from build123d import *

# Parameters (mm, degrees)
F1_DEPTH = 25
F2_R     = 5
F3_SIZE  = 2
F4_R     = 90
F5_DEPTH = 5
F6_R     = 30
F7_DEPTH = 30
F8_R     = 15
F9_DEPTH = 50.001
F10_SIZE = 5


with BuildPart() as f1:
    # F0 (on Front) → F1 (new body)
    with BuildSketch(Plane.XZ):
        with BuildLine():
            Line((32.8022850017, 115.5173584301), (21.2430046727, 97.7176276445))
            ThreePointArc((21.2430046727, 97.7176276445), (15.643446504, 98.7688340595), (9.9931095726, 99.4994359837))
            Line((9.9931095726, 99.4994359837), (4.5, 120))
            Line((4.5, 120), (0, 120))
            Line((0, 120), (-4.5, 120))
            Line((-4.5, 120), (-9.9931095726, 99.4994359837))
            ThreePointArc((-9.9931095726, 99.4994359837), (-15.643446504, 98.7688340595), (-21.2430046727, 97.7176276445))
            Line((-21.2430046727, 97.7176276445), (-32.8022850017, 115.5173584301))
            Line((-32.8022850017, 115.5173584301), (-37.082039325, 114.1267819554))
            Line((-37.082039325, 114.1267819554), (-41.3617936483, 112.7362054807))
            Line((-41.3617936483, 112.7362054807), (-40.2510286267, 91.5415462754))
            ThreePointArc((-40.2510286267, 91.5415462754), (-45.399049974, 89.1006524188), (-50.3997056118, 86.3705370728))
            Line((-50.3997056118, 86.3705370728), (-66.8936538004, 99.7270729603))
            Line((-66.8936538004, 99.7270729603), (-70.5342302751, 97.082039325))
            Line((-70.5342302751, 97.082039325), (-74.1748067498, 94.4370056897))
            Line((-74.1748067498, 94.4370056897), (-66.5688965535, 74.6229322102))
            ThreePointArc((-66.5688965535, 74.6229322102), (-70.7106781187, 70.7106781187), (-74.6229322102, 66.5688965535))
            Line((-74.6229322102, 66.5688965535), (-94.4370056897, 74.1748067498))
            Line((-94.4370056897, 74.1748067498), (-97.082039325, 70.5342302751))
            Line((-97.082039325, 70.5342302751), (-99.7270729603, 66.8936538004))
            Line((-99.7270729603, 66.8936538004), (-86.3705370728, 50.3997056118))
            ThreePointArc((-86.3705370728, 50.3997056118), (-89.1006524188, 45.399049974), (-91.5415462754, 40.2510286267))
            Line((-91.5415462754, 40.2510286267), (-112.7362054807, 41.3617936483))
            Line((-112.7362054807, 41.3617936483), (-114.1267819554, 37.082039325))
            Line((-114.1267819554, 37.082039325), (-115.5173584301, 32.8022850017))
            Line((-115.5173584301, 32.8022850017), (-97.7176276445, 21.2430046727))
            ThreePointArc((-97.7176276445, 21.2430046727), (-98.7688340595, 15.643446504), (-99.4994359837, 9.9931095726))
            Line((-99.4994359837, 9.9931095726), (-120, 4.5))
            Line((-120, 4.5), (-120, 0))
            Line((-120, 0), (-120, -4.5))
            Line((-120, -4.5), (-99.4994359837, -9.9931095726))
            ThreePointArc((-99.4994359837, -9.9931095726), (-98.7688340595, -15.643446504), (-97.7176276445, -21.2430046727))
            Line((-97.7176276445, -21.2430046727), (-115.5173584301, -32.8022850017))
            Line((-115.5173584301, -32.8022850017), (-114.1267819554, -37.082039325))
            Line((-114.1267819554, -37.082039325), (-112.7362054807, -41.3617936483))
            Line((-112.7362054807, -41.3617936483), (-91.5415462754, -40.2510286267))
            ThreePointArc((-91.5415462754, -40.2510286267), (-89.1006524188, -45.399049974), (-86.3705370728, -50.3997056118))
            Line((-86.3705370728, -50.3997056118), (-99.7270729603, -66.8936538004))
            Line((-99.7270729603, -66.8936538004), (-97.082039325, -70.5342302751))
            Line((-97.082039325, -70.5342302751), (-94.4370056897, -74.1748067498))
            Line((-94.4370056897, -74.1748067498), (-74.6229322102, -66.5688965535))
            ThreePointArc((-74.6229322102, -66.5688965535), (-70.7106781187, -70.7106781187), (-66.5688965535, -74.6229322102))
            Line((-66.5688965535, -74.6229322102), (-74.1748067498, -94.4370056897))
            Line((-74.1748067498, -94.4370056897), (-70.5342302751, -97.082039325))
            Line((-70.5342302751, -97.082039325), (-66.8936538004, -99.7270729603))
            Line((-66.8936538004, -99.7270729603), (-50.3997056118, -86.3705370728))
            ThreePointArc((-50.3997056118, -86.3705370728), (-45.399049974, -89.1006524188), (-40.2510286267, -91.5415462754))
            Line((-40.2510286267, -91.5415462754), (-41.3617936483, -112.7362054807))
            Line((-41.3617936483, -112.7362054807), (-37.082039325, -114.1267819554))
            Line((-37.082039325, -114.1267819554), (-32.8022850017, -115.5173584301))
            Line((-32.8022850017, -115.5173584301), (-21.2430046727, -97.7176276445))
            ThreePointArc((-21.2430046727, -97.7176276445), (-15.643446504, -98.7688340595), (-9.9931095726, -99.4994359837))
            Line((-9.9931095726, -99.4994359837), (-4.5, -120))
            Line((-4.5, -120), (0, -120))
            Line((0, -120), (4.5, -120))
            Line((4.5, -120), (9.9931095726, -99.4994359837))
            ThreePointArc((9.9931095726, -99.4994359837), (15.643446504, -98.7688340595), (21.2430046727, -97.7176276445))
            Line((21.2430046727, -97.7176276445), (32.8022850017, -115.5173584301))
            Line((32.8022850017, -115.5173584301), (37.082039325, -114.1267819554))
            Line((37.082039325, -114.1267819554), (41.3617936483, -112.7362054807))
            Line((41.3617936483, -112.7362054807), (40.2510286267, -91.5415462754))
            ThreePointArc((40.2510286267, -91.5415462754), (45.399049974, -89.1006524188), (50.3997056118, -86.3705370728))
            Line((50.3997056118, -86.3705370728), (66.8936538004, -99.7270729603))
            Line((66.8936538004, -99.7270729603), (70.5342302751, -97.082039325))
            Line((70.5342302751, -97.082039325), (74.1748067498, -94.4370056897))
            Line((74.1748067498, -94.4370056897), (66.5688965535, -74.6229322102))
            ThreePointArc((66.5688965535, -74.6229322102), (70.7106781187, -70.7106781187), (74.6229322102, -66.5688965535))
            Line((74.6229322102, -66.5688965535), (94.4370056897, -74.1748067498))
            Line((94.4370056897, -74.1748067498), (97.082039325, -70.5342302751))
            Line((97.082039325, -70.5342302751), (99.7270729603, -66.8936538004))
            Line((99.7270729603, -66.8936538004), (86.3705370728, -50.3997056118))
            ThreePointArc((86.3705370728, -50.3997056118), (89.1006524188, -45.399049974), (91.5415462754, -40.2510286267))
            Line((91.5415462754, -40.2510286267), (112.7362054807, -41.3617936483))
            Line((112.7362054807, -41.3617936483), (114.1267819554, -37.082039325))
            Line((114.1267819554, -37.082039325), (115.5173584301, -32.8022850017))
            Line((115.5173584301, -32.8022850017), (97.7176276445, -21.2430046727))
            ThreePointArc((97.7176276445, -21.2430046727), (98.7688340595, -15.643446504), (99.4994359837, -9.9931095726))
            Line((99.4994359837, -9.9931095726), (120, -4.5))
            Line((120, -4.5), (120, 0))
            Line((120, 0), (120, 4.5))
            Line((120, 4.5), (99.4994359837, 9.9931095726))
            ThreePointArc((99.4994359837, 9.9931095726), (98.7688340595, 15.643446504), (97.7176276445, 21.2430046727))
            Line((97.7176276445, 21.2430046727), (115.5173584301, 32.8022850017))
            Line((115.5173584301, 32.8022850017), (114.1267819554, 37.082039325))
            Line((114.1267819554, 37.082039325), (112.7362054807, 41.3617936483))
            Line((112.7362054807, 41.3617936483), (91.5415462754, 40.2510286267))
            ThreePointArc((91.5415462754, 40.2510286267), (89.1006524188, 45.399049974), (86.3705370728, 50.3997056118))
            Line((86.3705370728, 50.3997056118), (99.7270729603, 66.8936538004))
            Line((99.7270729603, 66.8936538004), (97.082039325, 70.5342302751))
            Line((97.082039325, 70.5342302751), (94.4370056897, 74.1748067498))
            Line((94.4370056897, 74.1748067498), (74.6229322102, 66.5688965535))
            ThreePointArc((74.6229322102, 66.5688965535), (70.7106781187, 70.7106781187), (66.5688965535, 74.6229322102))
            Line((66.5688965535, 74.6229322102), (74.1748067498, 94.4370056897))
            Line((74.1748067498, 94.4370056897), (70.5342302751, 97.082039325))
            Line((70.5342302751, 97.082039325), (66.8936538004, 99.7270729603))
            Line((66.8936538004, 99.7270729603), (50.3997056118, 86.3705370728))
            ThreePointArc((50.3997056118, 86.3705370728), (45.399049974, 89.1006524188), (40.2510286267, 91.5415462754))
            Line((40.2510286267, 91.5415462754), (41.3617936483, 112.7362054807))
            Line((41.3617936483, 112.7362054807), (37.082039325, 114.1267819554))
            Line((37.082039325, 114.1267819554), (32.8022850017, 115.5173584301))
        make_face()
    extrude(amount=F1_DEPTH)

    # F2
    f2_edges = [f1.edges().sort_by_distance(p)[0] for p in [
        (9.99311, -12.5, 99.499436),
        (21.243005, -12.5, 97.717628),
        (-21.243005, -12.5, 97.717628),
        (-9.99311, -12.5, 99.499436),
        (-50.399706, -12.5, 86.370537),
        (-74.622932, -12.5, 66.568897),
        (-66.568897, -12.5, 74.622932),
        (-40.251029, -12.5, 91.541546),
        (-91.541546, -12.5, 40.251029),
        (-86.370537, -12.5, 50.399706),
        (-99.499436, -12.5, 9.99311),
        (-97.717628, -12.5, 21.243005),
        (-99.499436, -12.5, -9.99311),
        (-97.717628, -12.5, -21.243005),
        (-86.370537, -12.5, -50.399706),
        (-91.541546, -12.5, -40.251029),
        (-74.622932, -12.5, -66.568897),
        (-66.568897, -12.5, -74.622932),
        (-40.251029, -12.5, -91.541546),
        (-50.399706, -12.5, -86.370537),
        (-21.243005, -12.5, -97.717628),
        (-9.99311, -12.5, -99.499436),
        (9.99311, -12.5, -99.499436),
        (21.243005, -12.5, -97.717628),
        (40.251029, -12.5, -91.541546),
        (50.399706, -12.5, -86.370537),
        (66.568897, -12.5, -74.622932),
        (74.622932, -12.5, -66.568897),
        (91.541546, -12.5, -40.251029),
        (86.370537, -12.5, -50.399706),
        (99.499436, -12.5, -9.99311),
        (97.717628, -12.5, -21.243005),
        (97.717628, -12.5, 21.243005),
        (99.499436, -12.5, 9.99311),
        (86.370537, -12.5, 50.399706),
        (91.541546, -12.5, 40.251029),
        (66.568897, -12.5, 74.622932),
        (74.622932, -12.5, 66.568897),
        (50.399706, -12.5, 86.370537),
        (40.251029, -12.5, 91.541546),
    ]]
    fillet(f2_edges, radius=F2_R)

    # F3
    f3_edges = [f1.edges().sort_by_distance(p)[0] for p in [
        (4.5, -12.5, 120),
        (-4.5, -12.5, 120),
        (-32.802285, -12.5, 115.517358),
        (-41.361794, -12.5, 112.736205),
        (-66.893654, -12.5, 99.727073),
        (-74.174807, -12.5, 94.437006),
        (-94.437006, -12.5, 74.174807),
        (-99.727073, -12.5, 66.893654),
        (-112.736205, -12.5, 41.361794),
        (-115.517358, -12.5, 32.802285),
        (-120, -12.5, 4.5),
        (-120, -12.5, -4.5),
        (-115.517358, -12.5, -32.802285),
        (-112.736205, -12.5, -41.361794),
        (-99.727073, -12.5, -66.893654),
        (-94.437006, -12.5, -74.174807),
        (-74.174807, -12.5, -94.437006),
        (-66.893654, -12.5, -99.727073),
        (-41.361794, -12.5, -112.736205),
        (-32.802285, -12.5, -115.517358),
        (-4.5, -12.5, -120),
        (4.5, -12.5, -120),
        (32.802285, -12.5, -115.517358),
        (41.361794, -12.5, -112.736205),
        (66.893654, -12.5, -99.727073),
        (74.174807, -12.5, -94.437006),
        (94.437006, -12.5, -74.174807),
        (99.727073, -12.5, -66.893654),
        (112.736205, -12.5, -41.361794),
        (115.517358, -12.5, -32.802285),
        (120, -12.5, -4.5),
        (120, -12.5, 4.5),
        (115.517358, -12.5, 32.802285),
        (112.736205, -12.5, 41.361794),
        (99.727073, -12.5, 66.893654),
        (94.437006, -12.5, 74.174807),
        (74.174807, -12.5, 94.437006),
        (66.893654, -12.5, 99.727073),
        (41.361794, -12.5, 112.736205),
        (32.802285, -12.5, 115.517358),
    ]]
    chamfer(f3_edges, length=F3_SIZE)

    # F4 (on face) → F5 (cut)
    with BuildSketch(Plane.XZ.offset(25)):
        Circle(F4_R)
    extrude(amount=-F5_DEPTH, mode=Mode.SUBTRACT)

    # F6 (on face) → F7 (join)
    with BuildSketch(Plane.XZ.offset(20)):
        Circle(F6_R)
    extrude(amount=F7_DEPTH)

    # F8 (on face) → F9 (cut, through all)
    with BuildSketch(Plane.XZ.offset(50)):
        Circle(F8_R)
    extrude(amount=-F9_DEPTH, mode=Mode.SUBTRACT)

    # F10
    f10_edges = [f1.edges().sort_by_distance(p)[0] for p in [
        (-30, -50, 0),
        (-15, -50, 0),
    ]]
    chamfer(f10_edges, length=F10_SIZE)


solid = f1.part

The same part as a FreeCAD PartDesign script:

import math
import FreeCAD as App
import Part
import Sketcher
Q = App.Units.Quantity


def edges_at(feature, points):
    """Names of the edges that pass closest to the given points."""
    edges = feature.Shape.Edges
    near = lambda p: min(range(len(edges)), key=lambda i: edges[i].distToShape(Part.Vertex(*p))[0])
    return sorted({f"Edge{near(p) + 1}" for p in points})

doc = App.newDocument("Part")
body = doc.addObject("PartDesign::Body", "Body")

# Sketch on XZ plane
sketch1 = body.newObject("Sketcher::SketchObject", "Sketch")
sketch1.AttachmentSupport = (doc.getObject("XZ_Plane"), [""])
sketch1.MapMode = "FlatFace"
sketch1.addGeometry(Part.LineSegment(App.Vector(32.802285, 115.517358, 0), App.Vector(21.243005, 97.717628, 0)), False)
sketch1.addGeometry(Part.ArcOfCircle(Part.Circle(App.Vector(0, 0, 0), App.Vector(0, 0, 1), 100), math.radians(77.735203), math.radians(84.264797)), False)
sketch1.addGeometry(Part.LineSegment(App.Vector(9.99311, 99.499436, 0), App.Vector(4.5, 120, 0)), False)
sketch1.addGeometry(Part.LineSegment(App.Vector(4.5, 120, 0), App.Vector(-4.5, 120, 0)), False)
sketch1.addGeometry(Part.LineSegment(App.Vector(-4.5, 120, 0), App.Vector(-9.99311, 99.499436, 0)), False)
sketch1.addGeometry(Part.ArcOfCircle(Part.Circle(App.Vector(0, 0, 0), App.Vector(0, 0, 1), 100), math.radians(95.735203), math.radians(102.264797)), False)
sketch1.addGeometry(Part.LineSegment(App.Vector(-21.243005, 97.717628, 0), App.Vector(-32.802285, 115.517358, 0)), False)
sketch1.addGeometry(Part.LineSegment(App.Vector(-32.802285, 115.517358, 0), App.Vector(-41.361794, 112.736205, 0)), False)
sketch1.addGeometry(Part.LineSegment(App.Vector(-41.361794, 112.736205, 0), App.Vector(-40.251029, 91.541546, 0)), False)
sketch1.addGeometry(Part.ArcOfCircle(Part.Circle(App.Vector(0, 0, 0), App.Vector(0, 0, 1), 100), math.radians(113.735203), math.radians(120.264797)), False)
sketch1.addGeometry(Part.LineSegment(App.Vector(-50.399706, 86.370537, 0), App.Vector(-66.893654, 99.727073, 0)), False)
sketch1.addGeometry(Part.LineSegment(App.Vector(-66.893654, 99.727073, 0), App.Vector(-74.174807, 94.437006, 0)), False)
sketch1.addGeometry(Part.LineSegment(App.Vector(-74.174807, 94.437006, 0), App.Vector(-66.568897, 74.622932, 0)), False)
sketch1.addGeometry(Part.ArcOfCircle(Part.Circle(App.Vector(0, 0, 0), App.Vector(0, 0, 1), 100), math.radians(131.735203), math.radians(138.264797)), False)
sketch1.addGeometry(Part.LineSegment(App.Vector(-74.622932, 66.568897, 0), App.Vector(-94.437006, 74.174807, 0)), False)
sketch1.addGeometry(Part.LineSegment(App.Vector(-94.437006, 74.174807, 0), App.Vector(-99.727073, 66.893654, 0)), False)
sketch1.addGeometry(Part.LineSegment(App.Vector(-99.727073, 66.893654, 0), App.Vector(-86.370537, 50.399706, 0)), False)
sketch1.addGeometry(Part.ArcOfCircle(Part.Circle(App.Vector(0, 0, 0), App.Vector(0, 0, 1), 100), math.radians(149.735203), math.radians(156.264797)), False)
sketch1.addGeometry(Part.LineSegment(App.Vector(-91.541546, 40.251029, 0), App.Vector(-112.736205, 41.361794, 0)), False)
sketch1.addGeometry(Part.LineSegment(App.Vector(-112.736205, 41.361794, 0), App.Vector(-115.517358, 32.802285, 0)), False)
sketch1.addGeometry(Part.LineSegment(App.Vector(-115.517358, 32.802285, 0), App.Vector(-97.717628, 21.243005, 0)), False)
sketch1.addGeometry(Part.ArcOfCircle(Part.Circle(App.Vector(0, 0, 0), App.Vector(0, 0, 1), 100), math.radians(167.735203), math.radians(174.264797)), False)
sketch1.addGeometry(Part.LineSegment(App.Vector(-99.499436, 9.99311, 0), App.Vector(-120, 4.5, 0)), False)
sketch1.addGeometry(Part.LineSegment(App.Vector(-120, 4.5, 0), App.Vector(-120, -4.5, 0)), False)
sketch1.addGeometry(Part.LineSegment(App.Vector(-120, -4.5, 0), App.Vector(-99.499436, -9.99311, 0)), False)
sketch1.addGeometry(Part.ArcOfCircle(Part.Circle(App.Vector(0, 0, 0), App.Vector(0, 0, 1), 100), math.radians(-174.264797), math.radians(-167.735203)), False)
sketch1.addGeometry(Part.LineSegment(App.Vector(-97.717628, -21.243005, 0), App.Vector(-115.517358, -32.802285, 0)), False)
sketch1.addGeometry(Part.LineSegment(App.Vector(-115.517358, -32.802285, 0), App.Vector(-112.736205, -41.361794, 0)), False)
sketch1.addGeometry(Part.LineSegment(App.Vector(-112.736205, -41.361794, 0), App.Vector(-91.541546, -40.251029, 0)), False)
sketch1.addGeometry(Part.ArcOfCircle(Part.Circle(App.Vector(0, 0, 0), App.Vector(0, 0, 1), 100), math.radians(-156.264797), math.radians(-149.735203)), False)
sketch1.addGeometry(Part.LineSegment(App.Vector(-86.370537, -50.399706, 0), App.Vector(-99.727073, -66.893654, 0)), False)
sketch1.addGeometry(Part.LineSegment(App.Vector(-99.727073, -66.893654, 0), App.Vector(-94.437006, -74.174807, 0)), False)
sketch1.addGeometry(Part.LineSegment(App.Vector(-94.437006, -74.174807, 0), App.Vector(-74.622932, -66.568897, 0)), False)
sketch1.addGeometry(Part.ArcOfCircle(Part.Circle(App.Vector(0, 0, 0), App.Vector(0, 0, 1), 100), math.radians(-138.264797), math.radians(-131.735203)), False)
sketch1.addGeometry(Part.LineSegment(App.Vector(-66.568897, -74.622932, 0), App.Vector(-74.174807, -94.437006, 0)), False)
sketch1.addGeometry(Part.LineSegment(App.Vector(-74.174807, -94.437006, 0), App.Vector(-66.893654, -99.727073, 0)), False)
sketch1.addGeometry(Part.LineSegment(App.Vector(-66.893654, -99.727073, 0), App.Vector(-50.399706, -86.370537, 0)), False)
sketch1.addGeometry(Part.ArcOfCircle(Part.Circle(App.Vector(0, 0, 0), App.Vector(0, 0, 1), 100), math.radians(-120.264797), math.radians(-113.735203)), False)
sketch1.addGeometry(Part.LineSegment(App.Vector(-40.251029, -91.541546, 0), App.Vector(-41.361794, -112.736205, 0)), False)
sketch1.addGeometry(Part.LineSegment(App.Vector(-41.361794, -112.736205, 0), App.Vector(-32.802285, -115.517358, 0)), False)
sketch1.addGeometry(Part.LineSegment(App.Vector(-32.802285, -115.517358, 0), App.Vector(-21.243005, -97.717628, 0)), False)
sketch1.addGeometry(Part.ArcOfCircle(Part.Circle(App.Vector(0, 0, 0), App.Vector(0, 0, 1), 100), math.radians(-102.264797), math.radians(-95.735203)), False)
sketch1.addGeometry(Part.LineSegment(App.Vector(-9.99311, -99.499436, 0), App.Vector(-4.5, -120, 0)), False)
sketch1.addGeometry(Part.LineSegment(App.Vector(-4.5, -120, 0), App.Vector(4.5, -120, 0)), False)
sketch1.addGeometry(Part.LineSegment(App.Vector(4.5, -120, 0), App.Vector(9.99311, -99.499436, 0)), False)
sketch1.addGeometry(Part.ArcOfCircle(Part.Circle(App.Vector(0, 0, 0), App.Vector(0, 0, 1), 100), math.radians(-84.264797), math.radians(-77.735203)), False)
sketch1.addGeometry(Part.LineSegment(App.Vector(21.243005, -97.717628, 0), App.Vector(32.802285, -115.517358, 0)), False)
sketch1.addGeometry(Part.LineSegment(App.Vector(32.802285, -115.517358, 0), App.Vector(41.361794, -112.736205, 0)), False)
sketch1.addGeometry(Part.LineSegment(App.Vector(41.361794, -112.736205, 0), App.Vector(40.251029, -91.541546, 0)), False)
sketch1.addGeometry(Part.ArcOfCircle(Part.Circle(App.Vector(0, 0, 0), App.Vector(0, 0, 1), 100), math.radians(-66.264797), math.radians(-59.735203)), False)
sketch1.addGeometry(Part.LineSegment(App.Vector(50.399706, -86.370537, 0), App.Vector(66.893654, -99.727073, 0)), False)
sketch1.addGeometry(Part.LineSegment(App.Vector(66.893654, -99.727073, 0), App.Vector(74.174807, -94.437006, 0)), False)
sketch1.addGeometry(Part.LineSegment(App.Vector(74.174807, -94.437006, 0), App.Vector(66.568897, -74.622932, 0)), False)
sketch1.addGeometry(Part.ArcOfCircle(Part.Circle(App.Vector(0, 0, 0), App.Vector(0, 0, 1), 100), math.radians(-48.264797), math.radians(-41.735203)), False)
sketch1.addGeometry(Part.LineSegment(App.Vector(74.622932, -66.568897, 0), App.Vector(94.437006, -74.174807, 0)), False)
sketch1.addGeometry(Part.LineSegment(App.Vector(94.437006, -74.174807, 0), App.Vector(99.727073, -66.893654, 0)), False)
sketch1.addGeometry(Part.LineSegment(App.Vector(99.727073, -66.893654, 0), App.Vector(86.370537, -50.399706, 0)), False)
sketch1.addGeometry(Part.ArcOfCircle(Part.Circle(App.Vector(0, 0, 0), App.Vector(0, 0, 1), 100), math.radians(-30.264797), math.radians(-23.735203)), False)
sketch1.addGeometry(Part.LineSegment(App.Vector(91.541546, -40.251029, 0), App.Vector(112.736205, -41.361794, 0)), False)
sketch1.addGeometry(Part.LineSegment(App.Vector(112.736205, -41.361794, 0), App.Vector(115.517358, -32.802285, 0)), False)
sketch1.addGeometry(Part.LineSegment(App.Vector(115.517358, -32.802285, 0), App.Vector(97.717628, -21.243005, 0)), False)
sketch1.addGeometry(Part.ArcOfCircle(Part.Circle(App.Vector(0, 0, 0), App.Vector(0, 0, 1), 100), math.radians(-12.264797), math.radians(-5.735203)), False)
sketch1.addGeometry(Part.LineSegment(App.Vector(99.499436, -9.99311, 0), App.Vector(120, -4.5, 0)), False)
sketch1.addGeometry(Part.LineSegment(App.Vector(120, -4.5, 0), App.Vector(120, 4.5, 0)), False)
sketch1.addGeometry(Part.LineSegment(App.Vector(120, 4.5, 0), App.Vector(99.499436, 9.99311, 0)), False)
sketch1.addGeometry(Part.ArcOfCircle(Part.Circle(App.Vector(0, 0, 0), App.Vector(0, 0, 1), 100), math.radians(5.735203), math.radians(12.264797)), False)
sketch1.addGeometry(Part.LineSegment(App.Vector(97.717628, 21.243005, 0), App.Vector(115.517358, 32.802285, 0)), False)
sketch1.addGeometry(Part.LineSegment(App.Vector(115.517358, 32.802285, 0), App.Vector(112.736205, 41.361794, 0)), False)
sketch1.addGeometry(Part.LineSegment(App.Vector(112.736205, 41.361794, 0), App.Vector(91.541546, 40.251029, 0)), False)
sketch1.addGeometry(Part.ArcOfCircle(Part.Circle(App.Vector(0, 0, 0), App.Vector(0, 0, 1), 100), math.radians(23.735203), math.radians(30.264797)), False)
sketch1.addGeometry(Part.LineSegment(App.Vector(86.370537, 50.399706, 0), App.Vector(99.727073, 66.893654, 0)), False)
sketch1.addGeometry(Part.LineSegment(App.Vector(99.727073, 66.893654, 0), App.Vector(94.437006, 74.174807, 0)), False)
sketch1.addGeometry(Part.LineSegment(App.Vector(94.437006, 74.174807, 0), App.Vector(74.622932, 66.568897, 0)), False)
sketch1.addGeometry(Part.ArcOfCircle(Part.Circle(App.Vector(0, 0, 0), App.Vector(0, 0, 1), 100), math.radians(41.735203), math.radians(48.264797)), False)
sketch1.addGeometry(Part.LineSegment(App.Vector(66.568897, 74.622932, 0), App.Vector(74.174807, 94.437006, 0)), False)
sketch1.addGeometry(Part.LineSegment(App.Vector(74.174807, 94.437006, 0), App.Vector(66.893654, 99.727073, 0)), False)
sketch1.addGeometry(Part.LineSegment(App.Vector(66.893654, 99.727073, 0), App.Vector(50.399706, 86.370537, 0)), False)
sketch1.addGeometry(Part.ArcOfCircle(Part.Circle(App.Vector(0, 0, 0), App.Vector(0, 0, 1), 100), math.radians(59.735203), math.radians(66.264797)), False)
sketch1.addGeometry(Part.LineSegment(App.Vector(40.251029, 91.541546, 0), App.Vector(41.361794, 112.736205, 0)), False)
sketch1.addGeometry(Part.LineSegment(App.Vector(41.361794, 112.736205, 0), App.Vector(32.802285, 115.517358, 0)), False)
sketch1.addConstraint(Sketcher.Constraint("Coincident", 0, 2, 1, 1))
sketch1.addConstraint(Sketcher.Constraint("Coincident", 1, 2, 2, 1))
sketch1.addConstraint(Sketcher.Constraint("Coincident", 2, 2, 3, 1))
sketch1.addConstraint(Sketcher.Constraint("Coincident", 3, 2, 4, 1))
sketch1.addConstraint(Sketcher.Constraint("Coincident", 4, 2, 5, 1))
sketch1.addConstraint(Sketcher.Constraint("Coincident", 5, 2, 6, 1))
sketch1.addConstraint(Sketcher.Constraint("Coincident", 6, 2, 7, 1))
sketch1.addConstraint(Sketcher.Constraint("Coincident", 7, 2, 8, 1))
sketch1.addConstraint(Sketcher.Constraint("Coincident", 8, 2, 9, 1))
sketch1.addConstraint(Sketcher.Constraint("Coincident", 9, 2, 10, 1))
sketch1.addConstraint(Sketcher.Constraint("Coincident", 10, 2, 11, 1))
sketch1.addConstraint(Sketcher.Constraint("Coincident", 11, 2, 12, 1))
sketch1.addConstraint(Sketcher.Constraint("Coincident", 12, 2, 13, 1))
sketch1.addConstraint(Sketcher.Constraint("Coincident", 13, 2, 14, 1))
sketch1.addConstraint(Sketcher.Constraint("Coincident", 14, 2, 15, 1))
sketch1.addConstraint(Sketcher.Constraint("Coincident", 15, 2, 16, 1))
sketch1.addConstraint(Sketcher.Constraint("Coincident", 16, 2, 17, 1))
sketch1.addConstraint(Sketcher.Constraint("Coincident", 17, 2, 18, 1))
sketch1.addConstraint(Sketcher.Constraint("Coincident", 18, 2, 19, 1))
sketch1.addConstraint(Sketcher.Constraint("Coincident", 19, 2, 20, 1))
sketch1.addConstraint(Sketcher.Constraint("Coincident", 20, 2, 21, 1))
sketch1.addConstraint(Sketcher.Constraint("Coincident", 21, 2, 22, 1))
sketch1.addConstraint(Sketcher.Constraint("Coincident", 22, 2, 23, 1))
sketch1.addConstraint(Sketcher.Constraint("Coincident", 23, 2, 24, 1))
sketch1.addConstraint(Sketcher.Constraint("Coincident", 24, 2, 25, 1))
sketch1.addConstraint(Sketcher.Constraint("Coincident", 25, 2, 26, 1))
sketch1.addConstraint(Sketcher.Constraint("Coincident", 26, 2, 27, 1))
sketch1.addConstraint(Sketcher.Constraint("Coincident", 27, 2, 28, 1))
sketch1.addConstraint(Sketcher.Constraint("Coincident", 28, 2, 29, 1))
sketch1.addConstraint(Sketcher.Constraint("Coincident", 29, 2, 30, 1))
sketch1.addConstraint(Sketcher.Constraint("Coincident", 30, 2, 31, 1))
sketch1.addConstraint(Sketcher.Constraint("Coincident", 31, 2, 32, 1))
sketch1.addConstraint(Sketcher.Constraint("Coincident", 32, 2, 33, 1))
sketch1.addConstraint(Sketcher.Constraint("Coincident", 33, 2, 34, 1))
sketch1.addConstraint(Sketcher.Constraint("Coincident", 34, 2, 35, 1))
sketch1.addConstraint(Sketcher.Constraint("Coincident", 35, 2, 36, 1))
sketch1.addConstraint(Sketcher.Constraint("Coincident", 36, 2, 37, 1))
sketch1.addConstraint(Sketcher.Constraint("Coincident", 37, 2, 38, 1))
sketch1.addConstraint(Sketcher.Constraint("Coincident", 38, 2, 39, 1))
sketch1.addConstraint(Sketcher.Constraint("Coincident", 39, 2, 40, 1))
sketch1.addConstraint(Sketcher.Constraint("Coincident", 40, 2, 41, 1))
sketch1.addConstraint(Sketcher.Constraint("Coincident", 41, 2, 42, 1))
sketch1.addConstraint(Sketcher.Constraint("Coincident", 42, 2, 43, 1))
sketch1.addConstraint(Sketcher.Constraint("Coincident", 43, 2, 44, 1))
sketch1.addConstraint(Sketcher.Constraint("Coincident", 44, 2, 45, 1))
sketch1.addConstraint(Sketcher.Constraint("Coincident", 45, 2, 46, 1))
sketch1.addConstraint(Sketcher.Constraint("Coincident", 46, 2, 47, 1))
sketch1.addConstraint(Sketcher.Constraint("Coincident", 47, 2, 48, 1))
sketch1.addConstraint(Sketcher.Constraint("Coincident", 48, 2, 49, 1))
sketch1.addConstraint(Sketcher.Constraint("Coincident", 49, 2, 50, 1))
sketch1.addConstraint(Sketcher.Constraint("Coincident", 50, 2, 51, 1))
sketch1.addConstraint(Sketcher.Constraint("Coincident", 51, 2, 52, 1))
sketch1.addConstraint(Sketcher.Constraint("Coincident", 52, 2, 53, 1))
sketch1.addConstraint(Sketcher.Constraint("Coincident", 53, 2, 54, 1))
sketch1.addConstraint(Sketcher.Constraint("Coincident", 54, 2, 55, 1))
sketch1.addConstraint(Sketcher.Constraint("Coincident", 55, 2, 56, 1))
sketch1.addConstraint(Sketcher.Constraint("Coincident", 56, 2, 57, 1))
sketch1.addConstraint(Sketcher.Constraint("Coincident", 57, 2, 58, 1))
sketch1.addConstraint(Sketcher.Constraint("Coincident", 58, 2, 59, 1))
sketch1.addConstraint(Sketcher.Constraint("Coincident", 59, 2, 60, 1))
sketch1.addConstraint(Sketcher.Constraint("Coincident", 60, 2, 61, 1))
sketch1.addConstraint(Sketcher.Constraint("Coincident", 61, 2, 62, 1))
sketch1.addConstraint(Sketcher.Constraint("Coincident", 62, 2, 63, 1))
sketch1.addConstraint(Sketcher.Constraint("Coincident", 63, 2, 64, 1))
sketch1.addConstraint(Sketcher.Constraint("Coincident", 64, 2, 65, 1))
sketch1.addConstraint(Sketcher.Constraint("Coincident", 65, 2, 66, 1))
sketch1.addConstraint(Sketcher.Constraint("Coincident", 66, 2, 67, 1))
sketch1.addConstraint(Sketcher.Constraint("Coincident", 67, 2, 68, 1))
sketch1.addConstraint(Sketcher.Constraint("Coincident", 68, 2, 69, 1))
sketch1.addConstraint(Sketcher.Constraint("Coincident", 69, 2, 70, 1))
sketch1.addConstraint(Sketcher.Constraint("Coincident", 70, 2, 71, 1))
sketch1.addConstraint(Sketcher.Constraint("Coincident", 71, 2, 72, 1))
sketch1.addConstraint(Sketcher.Constraint("Coincident", 72, 2, 73, 1))
sketch1.addConstraint(Sketcher.Constraint("Coincident", 73, 2, 74, 1))
sketch1.addConstraint(Sketcher.Constraint("Coincident", 74, 2, 75, 1))
sketch1.addConstraint(Sketcher.Constraint("Coincident", 75, 2, 76, 1))
sketch1.addConstraint(Sketcher.Constraint("Coincident", 76, 2, 77, 1))
sketch1.addConstraint(Sketcher.Constraint("Coincident", 77, 2, 78, 1))
sketch1.addConstraint(Sketcher.Constraint("Coincident", 78, 2, 79, 1))
sketch1.addConstraint(Sketcher.Constraint("Coincident", 79, 2, 0, 1))
sketch1.addConstraint(Sketcher.Constraint("Horizontal", 3))
sketch1.addConstraint(Sketcher.Constraint("Vertical", 23))
sketch1.addConstraint(Sketcher.Constraint("Horizontal", 43))
sketch1.addConstraint(Sketcher.Constraint("Vertical", 63))
sketch1.addConstraint(Sketcher.Constraint("Coincident", 1, 3, -1, 1))
sketch1.addConstraint(Sketcher.Constraint("Coincident", 5, 3, -1, 1))
sketch1.addConstraint(Sketcher.Constraint("Coincident", 9, 3, -1, 1))
sketch1.addConstraint(Sketcher.Constraint("Coincident", 13, 3, -1, 1))
sketch1.addConstraint(Sketcher.Constraint("Coincident", 17, 3, -1, 1))
sketch1.addConstraint(Sketcher.Constraint("Coincident", 21, 3, -1, 1))
sketch1.addConstraint(Sketcher.Constraint("Coincident", 25, 3, -1, 1))
sketch1.addConstraint(Sketcher.Constraint("Coincident", 29, 3, -1, 1))
sketch1.addConstraint(Sketcher.Constraint("Coincident", 33, 3, -1, 1))
sketch1.addConstraint(Sketcher.Constraint("Coincident", 37, 3, -1, 1))
sketch1.addConstraint(Sketcher.Constraint("Coincident", 41, 3, -1, 1))
sketch1.addConstraint(Sketcher.Constraint("Coincident", 45, 3, -1, 1))
sketch1.addConstraint(Sketcher.Constraint("Coincident", 49, 3, -1, 1))
sketch1.addConstraint(Sketcher.Constraint("Coincident", 53, 3, -1, 1))
sketch1.addConstraint(Sketcher.Constraint("Coincident", 57, 3, -1, 1))
sketch1.addConstraint(Sketcher.Constraint("Coincident", 61, 3, -1, 1))
sketch1.addConstraint(Sketcher.Constraint("Coincident", 65, 3, -1, 1))
sketch1.addConstraint(Sketcher.Constraint("Coincident", 69, 3, -1, 1))
sketch1.addConstraint(Sketcher.Constraint("Coincident", 73, 3, -1, 1))
sketch1.addConstraint(Sketcher.Constraint("Coincident", 77, 3, -1, 1))
sketch1.addConstraint(Sketcher.Constraint("Equal", 1, 5))
sketch1.addConstraint(Sketcher.Constraint("Equal", 5, 9))
sketch1.addConstraint(Sketcher.Constraint("Equal", 9, 13))
sketch1.addConstraint(Sketcher.Constraint("Equal", 13, 17))
sketch1.addConstraint(Sketcher.Constraint("Equal", 17, 21))
sketch1.addConstraint(Sketcher.Constraint("Equal", 21, 25))
sketch1.addConstraint(Sketcher.Constraint("Equal", 25, 29))
sketch1.addConstraint(Sketcher.Constraint("Equal", 29, 33))
sketch1.addConstraint(Sketcher.Constraint("Equal", 33, 37))
sketch1.addConstraint(Sketcher.Constraint("Equal", 37, 41))
sketch1.addConstraint(Sketcher.Constraint("Equal", 41, 45))
sketch1.addConstraint(Sketcher.Constraint("Equal", 45, 49))
sketch1.addConstraint(Sketcher.Constraint("Equal", 49, 53))
sketch1.addConstraint(Sketcher.Constraint("Equal", 53, 57))
sketch1.addConstraint(Sketcher.Constraint("Equal", 57, 61))
sketch1.addConstraint(Sketcher.Constraint("Equal", 61, 65))
sketch1.addConstraint(Sketcher.Constraint("Equal", 65, 69))
sketch1.addConstraint(Sketcher.Constraint("Equal", 69, 73))
sketch1.addConstraint(Sketcher.Constraint("Equal", 73, 77))
sketch1.addConstraint(Sketcher.Constraint("Symmetric", 2, 2, 42, 2, -1, 1))
sketch1.addConstraint(Sketcher.Constraint("Symmetric", 6, 2, 46, 2, -1, 1))
sketch1.addConstraint(Sketcher.Constraint("Symmetric", 7, 2, 47, 2, -1, 1))
sketch1.addConstraint(Sketcher.Constraint("Symmetric", 10, 2, 50, 2, -1, 1))
sketch1.addConstraint(Sketcher.Constraint("Symmetric", 11, 2, 51, 2, -1, 1))
sketch1.addConstraint(Sketcher.Constraint("Symmetric", 14, 2, 54, 2, -1, 1))
sketch1.addConstraint(Sketcher.Constraint("Symmetric", 15, 2, 55, 2, -1, 1))
sketch1.addConstraint(Sketcher.Constraint("Symmetric", 18, 2, 58, 2, -1, 1))
sketch1.addConstraint(Sketcher.Constraint("Symmetric", 19, 2, 59, 2, -1, 1))
sketch1.addConstraint(Sketcher.Constraint("Symmetric", 22, 2, 62, 2, -1, 1))
sketch1.addConstraint(Sketcher.Constraint("Symmetric", 26, 2, 66, 2, -1, 1))
sketch1.addConstraint(Sketcher.Constraint("Symmetric", 27, 2, 67, 2, -1, 1))
sketch1.addConstraint(Sketcher.Constraint("Symmetric", 30, 2, 70, 2, -1, 1))
sketch1.addConstraint(Sketcher.Constraint("Symmetric", 31, 2, 71, 2, -1, 1))
sketch1.addConstraint(Sketcher.Constraint("Symmetric", 34, 2, 74, 2, -1, 1))
sketch1.addConstraint(Sketcher.Constraint("Symmetric", 35, 2, 75, 2, -1, 1))
sketch1.addConstraint(Sketcher.Constraint("Symmetric", 38, 2, 78, 2, -1, 1))
sketch1.addConstraint(Sketcher.Constraint("Symmetric", 39, 2, 79, 2, -1, 1))
sketch1.addConstraint(Sketcher.Constraint("Symmetric", 39, 2, 46, 2, -2))
sketch1.addConstraint(Sketcher.Constraint("Symmetric", 38, 2, 47, 2, -2))
sketch1.addConstraint(Sketcher.Constraint("Symmetric", 35, 2, 50, 2, -2))
sketch1.addConstraint(Sketcher.Constraint("Symmetric", 34, 2, 51, 2, -2))
sketch1.addConstraint(Sketcher.Constraint("Symmetric", 31, 2, 54, 2, -2))
sketch1.addConstraint(Sketcher.Constraint("Symmetric", 30, 2, 55, 2, -2))
sketch1.addConstraint(Sketcher.Constraint("Symmetric", 27, 2, 58, 2, -2))
sketch1.addConstraint(Sketcher.Constraint("Symmetric", 26, 2, 59, 2, -2))
sketch1.addConstraint(Sketcher.Constraint("Perpendicular", 0, 20))
sketch1.addConstraint(Sketcher.Constraint("Perpendicular", 2, 22))
sketch1.addConstraint(Sketcher.Constraint("Perpendicular", 4, 24))
sketch1.addConstraint(Sketcher.Constraint("Perpendicular", 6, 26))
sketch1.addConstraint(Sketcher.Constraint("Perpendicular", 7, 27))
sketch1.addConstraint(Sketcher.Constraint("Perpendicular", 8, 28))
sketch1.addConstraint(Sketcher.Constraint("Perpendicular", 10, 30))
sketch1.addConstraint(Sketcher.Constraint("Perpendicular", 11, 31))
sketch1.addConstraint(Sketcher.Constraint("Perpendicular", 12, 32))
sketch1.addConstraint(Sketcher.Constraint("Perpendicular", 14, 34))
sketch1.addConstraint(Sketcher.Constraint("Perpendicular", 16, 36))
sketch1.addConstraint(Sketcher.Constraint("Perpendicular", 18, 38))
sketch1.addConstraint(Sketcher.Constraint("Perpendicular", 20, 40))
sketch1.addConstraint(Sketcher.Constraint("Perpendicular", 22, 42))
sketch1.addConstraint(Sketcher.Constraint("Perpendicular", 24, 44))
sketch1.addConstraint(Sketcher.Constraint("Perpendicular", 26, 46))
sketch1.addConstraint(Sketcher.Constraint("Perpendicular", 28, 48))
sketch1.addConstraint(Sketcher.Constraint("Perpendicular", 30, 50))
sketch1.addConstraint(Sketcher.Constraint("Perpendicular", 32, 52))
sketch1.addConstraint(Sketcher.Constraint("Perpendicular", 34, 54))
sketch1.addConstraint(Sketcher.Constraint("Perpendicular", 36, 56))
sketch1.addConstraint(Sketcher.Constraint("Perpendicular", 38, 58))
sketch1.addConstraint(Sketcher.Constraint("Perpendicular", 40, 60))
sketch1.addConstraint(Sketcher.Constraint("Perpendicular", 42, 62))
sketch1.addConstraint(Sketcher.Constraint("Perpendicular", 44, 64))
sketch1.addConstraint(Sketcher.Constraint("Perpendicular", 46, 66))
sketch1.addConstraint(Sketcher.Constraint("Perpendicular", 48, 68))
sketch1.addConstraint(Sketcher.Constraint("Perpendicular", 50, 70))
sketch1.addConstraint(Sketcher.Constraint("Perpendicular", 52, 72))
sketch1.addConstraint(Sketcher.Constraint("Perpendicular", 54, 74))
sketch1.addConstraint(Sketcher.Constraint("Perpendicular", 56, 76))
sketch1.addConstraint(Sketcher.Constraint("Perpendicular", 58, 78))
sketch1.addConstraint(Sketcher.Constraint("Horizontal", 1, 2, 4, 2))
sketch1.addConstraint(Sketcher.Constraint("Horizontal", 0, 2, 5, 2))
sketch1.addConstraint(Sketcher.Constraint("Horizontal", 41, 2, 44, 2))
sketch1.addConstraint(Sketcher.Constraint("Horizontal", 37, 2, 48, 2))
sketch1.addConstraint(Sketcher.Constraint("Horizontal", 36, 2, 49, 2))
sketch1.addConstraint(Sketcher.Constraint("Horizontal", 33, 2, 52, 2))
sketch1.addConstraint(Sketcher.Constraint("Horizontal", 24, 2, 61, 2))
sketch1.addConstraint(Sketcher.Constraint("Horizontal", 23, 2, 62, 2))
sketch1.addConstraint(Sketcher.Constraint("Horizontal", 22, 2, 63, 2))
sketch1.addConstraint(Sketcher.Constraint("Equal", 43, 23))
sketch1.addConstraint(Sketcher.Constraint("Equal", 0, 2))
sketch1.addConstraint(Sketcher.Constraint("Equal", 6, 8))
sketch1.addConstraint(Sketcher.Constraint("Equal", 8, 10))
sketch1.addConstraint(Sketcher.Constraint("Equal", 7, 11))
sketch1.addConstraint(Sketcher.Constraint("Equal", 10, 12))
sketch1.addConstraint(Sketcher.Constraint("Equal", 12, 14))
sketch1.addConstraint(Sketcher.Constraint("Equal", 11, 15))
sketch1.addConstraint(Sketcher.Constraint("Equal", 14, 16))
sketch1.addConstraint(Sketcher.Constraint("Equal", 16, 18))
sketch1.addConstraint(Sketcher.Constraint("Equal", 15, 19))
sketch1.addConstraint(Sketcher.Constraint("Equal", 18, 20))
sketch1.addConstraint(Sketcher.Constraint("Equal", 20, 22))
sketch1.addConstraint(Sketcher.Constraint("Radius", 1, 100.0))
sketch1.addConstraint(Sketcher.Constraint("DistanceX", 3, 2, 3, 1, 9.0))
sketch1.addConstraint(Sketcher.Constraint("Angle", 0, Q("-123 deg")))
sketch1.addConstraint(Sketcher.Constraint("Angle", 2, Q("105 deg")))
sketch1.addConstraint(Sketcher.Constraint("Angle", 7, Q("-162 deg")))
sketch1.addConstraint(Sketcher.Constraint("Angle", 8, Q("-87 deg")))
sketch1.addConstraint(Sketcher.Constraint("Angle", 10, Q("141 deg")))
sketch1.addConstraint(Sketcher.Constraint("Angle", 11, Q("-144 deg")))
sketch1.addConstraint(Sketcher.Constraint("Angle", 12, Q("-69 deg")))
sketch1.addConstraint(Sketcher.Constraint("Distance", 7, 9.0))
sketch1.addConstraint(Sketcher.Constraint("DistanceY", -1, 1, 2, 2, 120.0))
pad1 = body.newObject("PartDesign::Pad", "Pad")
pad1.Profile = sketch1
pad1.Length = 25
doc.recompute()

fillet = body.newObject("PartDesign::Fillet", "Fillet")
fillet.Base = (pad1, edges_at(pad1, [
    (9.993, -12.5, 99.499),
    (21.243, -12.5, 97.718),
    (-21.243, -12.5, 97.718),
    (-9.993, -12.5, 99.499),
    (-50.4, -12.5, 86.371),
    (-74.623, -12.5, 66.569),
    (-66.569, -12.5, 74.623),
    (-40.251, -12.5, 91.542),
    (-91.542, -12.5, 40.251),
    (-86.371, -12.5, 50.4),
    (-99.499, -12.5, 9.993),
    (-97.718, -12.5, 21.243),
    (-99.499, -12.5, -9.993),
    (-97.718, -12.5, -21.243),
    (-86.371, -12.5, -50.4),
    (-91.542, -12.5, -40.251),
    (-74.623, -12.5, -66.569),
    (-66.569, -12.5, -74.623),
    (-40.251, -12.5, -91.542),
    (-50.4, -12.5, -86.371),
    (-21.243, -12.5, -97.718),
    (-9.993, -12.5, -99.499),
    (9.993, -12.5, -99.499),
    (21.243, -12.5, -97.718),
    (40.251, -12.5, -91.542),
    (50.4, -12.5, -86.371),
    (66.569, -12.5, -74.623),
    (74.623, -12.5, -66.569),
    (91.542, -12.5, -40.251),
    (86.371, -12.5, -50.4),
    (99.499, -12.5, -9.993),
    (97.718, -12.5, -21.243),
    (97.718, -12.5, 21.243),
    (99.499, -12.5, 9.993),
    (86.371, -12.5, 50.4),
    (91.542, -12.5, 40.251),
    (66.569, -12.5, 74.623),
    (74.623, -12.5, 66.569),
    (50.4, -12.5, 86.371),
    (40.251, -12.5, 91.542),
]))
fillet.Radius = 5
doc.recompute()

chamfer = body.newObject("PartDesign::Chamfer", "Chamfer")
chamfer.Base = (fillet, edges_at(fillet, [
    (4.5, -12.5, 120),
    (-4.5, -12.5, 120),
    (-32.802, -12.5, 115.517),
    (-41.362, -12.5, 112.736),
    (-66.894, -12.5, 99.727),
    (-74.175, -12.5, 94.437),
    (-94.437, -12.5, 74.175),
    (-99.727, -12.5, 66.894),
    (-112.736, -12.5, 41.362),
    (-115.517, -12.5, 32.802),
    (-120, -12.5, 4.5),
    (-120, -12.5, -4.5),
    (-115.517, -12.5, -32.802),
    (-112.736, -12.5, -41.362),
    (-99.727, -12.5, -66.894),
    (-94.437, -12.5, -74.175),
    (-74.175, -12.5, -94.437),
    (-66.894, -12.5, -99.727),
    (-41.362, -12.5, -112.736),
    (-32.802, -12.5, -115.517),
    (-4.5, -12.5, -120),
    (4.5, -12.5, -120),
    (32.802, -12.5, -115.517),
    (41.362, -12.5, -112.736),
    (66.894, -12.5, -99.727),
    (74.175, -12.5, -94.437),
    (94.437, -12.5, -74.175),
    (99.727, -12.5, -66.894),
    (112.736, -12.5, -41.362),
    (115.517, -12.5, -32.802),
    (120, -12.5, -4.5),
    (120, -12.5, 4.5),
    (115.517, -12.5, 32.802),
    (112.736, -12.5, 41.362),
    (99.727, -12.5, 66.894),
    (94.437, -12.5, 74.175),
    (74.175, -12.5, 94.437),
    (66.894, -12.5, 99.727),
    (41.362, -12.5, 112.736),
    (32.802, -12.5, 115.517),
]))
chamfer.Size = 2

# Sketch on XZ plane
sketch2 = body.newObject("Sketcher::SketchObject", "Sketch001")
sketch2.AttachmentSupport = (doc.getObject("XZ_Plane"), [""])
sketch2.MapMode = "FlatFace"
sketch2.AttachmentOffset = App.Placement(App.Vector(0, 0, 25), App.Rotation())
sketch2.addGeometry(Part.Circle(App.Vector(0, 0, 0), App.Vector(0, 0, 1), 90), False)
sketch2.addConstraint(Sketcher.Constraint("Coincident", 0, 3, -1, 1))
sketch2.addConstraint(Sketcher.Constraint("Diameter", 0, 180.0))
pocket1 = body.newObject("PartDesign::Pocket", "Pocket")
pocket1.Profile = sketch2
pocket1.Length = 5

# Sketch on XZ plane
sketch3 = body.newObject("Sketcher::SketchObject", "Sketch002")
sketch3.AttachmentSupport = (doc.getObject("XZ_Plane"), [""])
sketch3.MapMode = "FlatFace"
sketch3.AttachmentOffset = App.Placement(App.Vector(0, 0, 20), App.Rotation())
sketch3.addGeometry(Part.Circle(App.Vector(0, 0, 0), App.Vector(0, 0, 1), 30), False)
sketch3.addConstraint(Sketcher.Constraint("Coincident", 0, 3, -1, 1))
sketch3.addConstraint(Sketcher.Constraint("Diameter", 0, 60.0))
pad2 = body.newObject("PartDesign::Pad", "Pad001")
pad2.Profile = sketch3
pad2.Length = 30

# Sketch on XZ plane
sketch4 = body.newObject("Sketcher::SketchObject", "Sketch003")
sketch4.AttachmentSupport = (doc.getObject("XZ_Plane"), [""])
sketch4.MapMode = "FlatFace"
sketch4.AttachmentOffset = App.Placement(App.Vector(0, 0, 50), App.Rotation())
sketch4.addGeometry(Part.Circle(App.Vector(0, 0, 0), App.Vector(0, 0, 1), 15), False)
sketch4.addConstraint(Sketcher.Constraint("Coincident", 0, 3, -1, 1))
sketch4.addConstraint(Sketcher.Constraint("Diameter", 0, 30.0))
pocket2 = body.newObject("PartDesign::Pocket", "Pocket001")
pocket2.Profile = sketch4
pocket2.Type = "ThroughAll"
doc.recompute()

chamfer2 = body.newObject("PartDesign::Chamfer", "Chamfer001")
chamfer2.Base = (pocket2, edges_at(pocket2, [(-30, -50, 0), (-15, -50, 0)]))
chamfer2.Size = 5

doc.recompute()
